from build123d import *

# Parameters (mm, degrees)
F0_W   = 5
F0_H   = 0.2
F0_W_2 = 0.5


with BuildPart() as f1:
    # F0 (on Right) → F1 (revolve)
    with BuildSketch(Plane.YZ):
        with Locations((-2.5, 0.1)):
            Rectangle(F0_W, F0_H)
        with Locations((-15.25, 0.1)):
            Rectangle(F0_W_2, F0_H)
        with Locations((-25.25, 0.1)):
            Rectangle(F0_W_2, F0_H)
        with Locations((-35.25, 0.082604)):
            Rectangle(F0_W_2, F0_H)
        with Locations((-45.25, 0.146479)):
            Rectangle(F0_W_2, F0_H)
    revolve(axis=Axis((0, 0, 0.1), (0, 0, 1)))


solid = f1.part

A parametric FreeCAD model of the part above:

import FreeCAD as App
import Part
import Sketcher


def add_polygon(sketch, points):
    """Adds a closed chain of lines whose ends are joined by coincident constraints."""
    first, n = sketch.GeometryCount, len(points)
    for a, b in zip(points, points[1:] + points[:1]):
        sketch.addGeometry(Part.LineSegment(App.Vector(*a, 0), App.Vector(*b, 0)), False)
    for i in range(n):
        sketch.addConstraint(Sketcher.Constraint("Coincident", first + i, 2, first + (i + 1) % n, 1))

doc = App.newDocument("Part")
body = doc.addObject("PartDesign::Body", "Body")
body.AllowCompound = True

sketch1 = body.newObject("Sketcher::SketchObject", "Sketch")
sketch1.AttachmentSupport = (doc.getObject("YZ_Plane"), [""])
sketch1.MapMode = "FlatFace"
add_polygon(sketch1, [(-5, 0.2), (-5, 0), (0, 0), (0, 0.2)])
add_polygon(sketch1, [(-15.5, 0.2), (-15.5, 0), (-15, 0), (-15, 0.2)])
add_polygon(sketch1, [(-25.5, 0.2), (-25.5, 0), (-25, 0), (-25, 0.2)])
add_polygon(sketch1, [(-35.5, 0.182604), (-35.5, -0.017396), (-35, -0.017396), (-35, 0.182604)])
add_polygon(sketch1, [(-45.5, 0.246479), (-45.5, 0.046479), (-45, 0.046479), (-45, 0.246479)])
sketch1.addConstraint(Sketcher.Constraint("Vertical", 0))
sketch1.addConstraint(Sketcher.Constraint("Horizontal", 1))
sketch1.addConstraint(Sketcher.Constraint("Vertical", 2))
sketch1.addConstraint(Sketcher.Constraint("Horizontal", 3))
sketch1.addConstraint(Sketcher.Constraint("Vertical", 4))
sketch1.addConstraint(Sketcher.Constraint("Horizontal", 5))
sketch1.addConstraint(Sketcher.Constraint("Vertical", 6))
sketch1.addConstraint(Sketcher.Constraint("Horizontal", 7))
sketch1.addConstraint(Sketcher.Constraint("Vertical", 8))
sketch1.addConstraint(Sketcher.Constraint("Horizontal", 9))
sketch1.addConstraint(Sketcher.Constraint("Vertical", 10))
sketch1.addConstraint(Sketcher.Constraint("Horizontal", 11))
sketch1.addConstraint(Sketcher.Constraint("Vertical", 12))
sketch1.addConstraint(Sketcher.Constraint("Horizontal", 13))
sketch1.addConstraint(Sketcher.Constraint("Vertical", 14))
sketch1.addConstraint(Sketcher.Constraint("Horizontal", 15))
sketch1.addConstraint(Sketcher.Constraint("Vertical", 16))
sketch1.addConstraint(Sketcher.Constraint("Horizontal", 17))
sketch1.addConstraint(Sketcher.Constraint("Vertical", 18))
sketch1.addConstraint(Sketcher.Constraint("Horizontal", 19))
sketch1.addConstraint(Sketcher.Constraint("Coincident", 1, 2, -1, 1))
sketch1.addConstraint(Sketcher.Constraint("PointOnObject", 4, 2, -1))
sketch1.addConstraint(Sketcher.Constraint("PointOnObject", 8, 2, -1))
sketch1.addConstraint(Sketcher.Constraint("Horizontal", 3, 2, 6, 2))
sketch1.addConstraint(Sketcher.Constraint("Horizontal", 7, 2, 10, 2))
sketch1.addConstraint(Sketcher.Constraint("Equal", 7, 9))
sketch1.addConstraint(Sketcher.Constraint("Equal", 11, 13))
sketch1.addConstraint(Sketcher.Constraint("Equal", 15, 17))
sketch1.addConstraint(Sketcher.Constraint("Equal", 10, 12))
sketch1.addConstraint(Sketcher.Constraint("Equal", 14, 16))
sketch1.addConstraint(Sketcher.Constraint("DistanceX", 1, 1, 1, 2, 5.0))
sketch1.addConstraint(Sketcher.Constraint("DistanceX", 5, 1, 5, 2, 0.5))
sketch1.addConstraint(Sketcher.Constraint("DistanceY", 0, 2, 0, 1, 0.2))
sketch1.addConstraint(Sketcher.Constraint("DistanceX", 5, 2, -1, 1, 15.0))
sketch1.addConstraint(Sketcher.Constraint("DistanceX", 9, 2, -1, 1, 25.0))
sketch1.addConstraint(Sketcher.Constraint("DistanceX", 13, 2, -1, 1, 35.0))
sketch1.addConstraint(Sketcher.Constraint("DistanceX", 17, 2, -1, 1, 45.0))
sketch1.addConstraint(Sketcher.Constraint("DistanceY", -1, 1, 16, 2, 0.046479))
sketch1.addConstraint(Sketcher.Constraint("DistanceY", 12, 2, -1, 1, 0.017396))
revolution = body.newObject("PartDesign::Revolution", "Revolution")
revolution.Profile = sketch1
revolution.ReferenceAxis = (sketch1, ["V_Axis"])
revolution.Angle = 360

doc.recompute()
